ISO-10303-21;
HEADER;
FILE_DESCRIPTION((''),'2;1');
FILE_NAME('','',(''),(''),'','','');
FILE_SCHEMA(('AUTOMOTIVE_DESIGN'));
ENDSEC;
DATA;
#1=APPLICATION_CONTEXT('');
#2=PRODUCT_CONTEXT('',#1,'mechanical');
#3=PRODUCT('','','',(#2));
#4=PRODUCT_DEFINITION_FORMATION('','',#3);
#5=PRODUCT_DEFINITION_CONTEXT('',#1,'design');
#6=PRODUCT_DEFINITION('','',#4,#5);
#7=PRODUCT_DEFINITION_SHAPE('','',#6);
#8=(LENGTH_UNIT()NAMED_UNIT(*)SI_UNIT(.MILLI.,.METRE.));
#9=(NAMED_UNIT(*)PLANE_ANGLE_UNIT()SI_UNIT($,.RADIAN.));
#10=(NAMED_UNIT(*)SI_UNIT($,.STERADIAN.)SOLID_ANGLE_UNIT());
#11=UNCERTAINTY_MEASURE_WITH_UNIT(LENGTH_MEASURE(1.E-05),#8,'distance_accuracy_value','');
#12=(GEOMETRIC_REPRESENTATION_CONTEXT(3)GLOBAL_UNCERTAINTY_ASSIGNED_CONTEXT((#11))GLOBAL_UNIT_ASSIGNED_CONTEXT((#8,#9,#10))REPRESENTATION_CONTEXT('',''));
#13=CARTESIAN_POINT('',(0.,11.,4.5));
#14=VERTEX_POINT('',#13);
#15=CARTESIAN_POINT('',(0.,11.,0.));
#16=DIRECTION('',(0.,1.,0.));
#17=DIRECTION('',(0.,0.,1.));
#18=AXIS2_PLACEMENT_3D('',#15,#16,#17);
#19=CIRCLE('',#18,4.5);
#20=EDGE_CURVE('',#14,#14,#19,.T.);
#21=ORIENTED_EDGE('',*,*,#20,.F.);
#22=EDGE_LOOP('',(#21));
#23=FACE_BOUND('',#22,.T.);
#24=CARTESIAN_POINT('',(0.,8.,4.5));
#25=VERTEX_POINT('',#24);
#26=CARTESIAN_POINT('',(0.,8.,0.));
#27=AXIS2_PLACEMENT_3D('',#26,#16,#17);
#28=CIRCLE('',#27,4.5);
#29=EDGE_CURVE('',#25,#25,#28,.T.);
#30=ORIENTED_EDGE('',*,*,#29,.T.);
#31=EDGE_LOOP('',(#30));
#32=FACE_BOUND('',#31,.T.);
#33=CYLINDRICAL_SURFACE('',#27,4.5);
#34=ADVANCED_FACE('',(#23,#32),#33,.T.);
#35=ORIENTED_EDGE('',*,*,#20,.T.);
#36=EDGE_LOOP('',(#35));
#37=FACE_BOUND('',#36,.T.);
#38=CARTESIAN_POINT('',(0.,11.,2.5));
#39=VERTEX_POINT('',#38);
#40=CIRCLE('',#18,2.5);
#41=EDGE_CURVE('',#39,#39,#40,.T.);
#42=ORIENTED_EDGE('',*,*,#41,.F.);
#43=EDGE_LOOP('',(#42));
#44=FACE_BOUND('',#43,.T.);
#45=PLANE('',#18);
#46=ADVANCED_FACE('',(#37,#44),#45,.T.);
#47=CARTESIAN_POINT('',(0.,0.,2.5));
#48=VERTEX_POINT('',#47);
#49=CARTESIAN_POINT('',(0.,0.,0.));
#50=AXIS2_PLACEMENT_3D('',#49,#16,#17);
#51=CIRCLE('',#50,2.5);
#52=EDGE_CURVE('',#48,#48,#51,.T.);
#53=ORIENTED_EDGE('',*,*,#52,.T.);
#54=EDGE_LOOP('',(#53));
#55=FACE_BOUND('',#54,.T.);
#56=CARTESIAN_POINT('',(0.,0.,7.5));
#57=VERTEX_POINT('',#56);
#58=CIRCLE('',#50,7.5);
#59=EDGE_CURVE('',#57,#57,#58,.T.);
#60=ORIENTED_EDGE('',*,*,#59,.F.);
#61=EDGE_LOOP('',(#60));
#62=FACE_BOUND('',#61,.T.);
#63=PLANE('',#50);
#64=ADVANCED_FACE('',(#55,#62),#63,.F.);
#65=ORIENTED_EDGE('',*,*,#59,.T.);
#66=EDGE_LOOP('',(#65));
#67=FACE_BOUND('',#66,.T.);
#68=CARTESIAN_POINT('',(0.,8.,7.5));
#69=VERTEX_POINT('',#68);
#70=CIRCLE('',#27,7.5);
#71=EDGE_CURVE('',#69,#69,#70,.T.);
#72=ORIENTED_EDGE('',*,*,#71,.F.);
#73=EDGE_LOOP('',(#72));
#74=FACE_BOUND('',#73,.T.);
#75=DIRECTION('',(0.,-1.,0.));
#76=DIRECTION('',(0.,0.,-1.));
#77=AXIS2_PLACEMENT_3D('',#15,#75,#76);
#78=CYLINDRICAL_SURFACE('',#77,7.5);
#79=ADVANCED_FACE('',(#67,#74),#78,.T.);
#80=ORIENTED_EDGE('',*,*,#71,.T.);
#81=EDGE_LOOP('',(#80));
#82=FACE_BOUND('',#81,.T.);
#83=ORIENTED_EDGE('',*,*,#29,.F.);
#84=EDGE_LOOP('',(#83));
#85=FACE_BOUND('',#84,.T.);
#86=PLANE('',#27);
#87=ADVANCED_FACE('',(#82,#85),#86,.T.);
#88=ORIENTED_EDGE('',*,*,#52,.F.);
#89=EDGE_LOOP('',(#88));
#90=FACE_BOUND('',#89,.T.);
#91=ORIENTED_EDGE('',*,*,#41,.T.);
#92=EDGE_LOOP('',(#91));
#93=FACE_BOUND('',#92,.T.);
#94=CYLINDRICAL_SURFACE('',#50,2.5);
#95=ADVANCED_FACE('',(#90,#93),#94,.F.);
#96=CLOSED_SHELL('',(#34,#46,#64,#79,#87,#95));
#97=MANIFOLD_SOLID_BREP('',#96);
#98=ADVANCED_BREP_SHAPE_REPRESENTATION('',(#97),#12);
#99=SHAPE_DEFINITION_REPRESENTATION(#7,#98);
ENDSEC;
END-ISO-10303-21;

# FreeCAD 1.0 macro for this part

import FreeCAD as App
import Part
import Sketcher

V = App.Vector
Q = App.Units.Quantity

doc = App.newDocument("Part")
body = doc.addObject("PartDesign::Body", "Body")

# Sketch on XZ plane
sketch1 = body.newObject("Sketcher::SketchObject", "Sketch")
sketch1.AttachmentSupport = (doc.getObject("XZ_Plane"), [""])
sketch1.MapMode = "FlatFace"
sketch1.addGeometry(Part.Circle(V(0, 0, 0), V(0, 0, 1), 8), False)
sketch1.addConstraint([
    Sketcher.Constraint("Coincident", 0, 3, -1, 1),
    Sketcher.Constraint("Diameter", 0, Q("15 mm")),
])
pad1 = body.newObject("PartDesign::Pad", "Pad")
pad1.Profile = sketch1
pad1.Length = 11
pad1.Reversed = True

# Sketch on XZ plane
sketch2 = body.newObject("Sketcher::SketchObject", "Sketch001")
sketch2.AttachmentSupport = (doc.getObject("XZ_Plane"), [""])
sketch2.MapMode = "FlatFace"
sketch2.AttachmentOffset = App.Placement(V(0, 0, -11), App.Rotation())
sketch2.addGeometry(Part.Circle(V(0, 0, 0), V(0, 0, 1), 2.5), False)
sketch2.addConstraint([
    Sketcher.Constraint("Coincident", 0, 3, -1, 1),
    Sketcher.Constraint("Diameter", 0, Q("5 mm")),
])
pocket1 = body.newObject("PartDesign::Pocket", "Pocket")
pocket1.Profile = sketch2
pocket1.Type = "ThroughAll"
pocket1.Reversed = True

# Sketch on XZ plane
sketch3 = body.newObject("Sketcher::SketchObject", "Sketch002")
sketch3.AttachmentSupport = (doc.getObject("XZ_Plane"), [""])
sketch3.MapMode = "FlatFace"
sketch3.AttachmentOffset = App.Placement(V(0, 0, -8), App.Rotation())
sketch3.addGeometry([
    Part.Circle(V(0, 0, 0), V(0, 0, 1), 7.5),
    Part.Circle(V(0, 0, 0), V(0, 0, 1), 4.5),
], False)
sketch3.addConstraint([
    Sketcher.Constraint("Coincident", 0, 3, -1, 1),
    Sketcher.Constraint("Coincident", 1, 3, -1, 1),
    Sketcher.Constraint("Diameter", 0, Q("15 mm")),
    Sketcher.Constraint("Diameter", 1, Q("9 mm")),
])
pocket2 = body.newObject("PartDesign::Pocket", "Pocket001")
pocket2.Profile = sketch3
pocket2.Length = 3

doc.recompute()
